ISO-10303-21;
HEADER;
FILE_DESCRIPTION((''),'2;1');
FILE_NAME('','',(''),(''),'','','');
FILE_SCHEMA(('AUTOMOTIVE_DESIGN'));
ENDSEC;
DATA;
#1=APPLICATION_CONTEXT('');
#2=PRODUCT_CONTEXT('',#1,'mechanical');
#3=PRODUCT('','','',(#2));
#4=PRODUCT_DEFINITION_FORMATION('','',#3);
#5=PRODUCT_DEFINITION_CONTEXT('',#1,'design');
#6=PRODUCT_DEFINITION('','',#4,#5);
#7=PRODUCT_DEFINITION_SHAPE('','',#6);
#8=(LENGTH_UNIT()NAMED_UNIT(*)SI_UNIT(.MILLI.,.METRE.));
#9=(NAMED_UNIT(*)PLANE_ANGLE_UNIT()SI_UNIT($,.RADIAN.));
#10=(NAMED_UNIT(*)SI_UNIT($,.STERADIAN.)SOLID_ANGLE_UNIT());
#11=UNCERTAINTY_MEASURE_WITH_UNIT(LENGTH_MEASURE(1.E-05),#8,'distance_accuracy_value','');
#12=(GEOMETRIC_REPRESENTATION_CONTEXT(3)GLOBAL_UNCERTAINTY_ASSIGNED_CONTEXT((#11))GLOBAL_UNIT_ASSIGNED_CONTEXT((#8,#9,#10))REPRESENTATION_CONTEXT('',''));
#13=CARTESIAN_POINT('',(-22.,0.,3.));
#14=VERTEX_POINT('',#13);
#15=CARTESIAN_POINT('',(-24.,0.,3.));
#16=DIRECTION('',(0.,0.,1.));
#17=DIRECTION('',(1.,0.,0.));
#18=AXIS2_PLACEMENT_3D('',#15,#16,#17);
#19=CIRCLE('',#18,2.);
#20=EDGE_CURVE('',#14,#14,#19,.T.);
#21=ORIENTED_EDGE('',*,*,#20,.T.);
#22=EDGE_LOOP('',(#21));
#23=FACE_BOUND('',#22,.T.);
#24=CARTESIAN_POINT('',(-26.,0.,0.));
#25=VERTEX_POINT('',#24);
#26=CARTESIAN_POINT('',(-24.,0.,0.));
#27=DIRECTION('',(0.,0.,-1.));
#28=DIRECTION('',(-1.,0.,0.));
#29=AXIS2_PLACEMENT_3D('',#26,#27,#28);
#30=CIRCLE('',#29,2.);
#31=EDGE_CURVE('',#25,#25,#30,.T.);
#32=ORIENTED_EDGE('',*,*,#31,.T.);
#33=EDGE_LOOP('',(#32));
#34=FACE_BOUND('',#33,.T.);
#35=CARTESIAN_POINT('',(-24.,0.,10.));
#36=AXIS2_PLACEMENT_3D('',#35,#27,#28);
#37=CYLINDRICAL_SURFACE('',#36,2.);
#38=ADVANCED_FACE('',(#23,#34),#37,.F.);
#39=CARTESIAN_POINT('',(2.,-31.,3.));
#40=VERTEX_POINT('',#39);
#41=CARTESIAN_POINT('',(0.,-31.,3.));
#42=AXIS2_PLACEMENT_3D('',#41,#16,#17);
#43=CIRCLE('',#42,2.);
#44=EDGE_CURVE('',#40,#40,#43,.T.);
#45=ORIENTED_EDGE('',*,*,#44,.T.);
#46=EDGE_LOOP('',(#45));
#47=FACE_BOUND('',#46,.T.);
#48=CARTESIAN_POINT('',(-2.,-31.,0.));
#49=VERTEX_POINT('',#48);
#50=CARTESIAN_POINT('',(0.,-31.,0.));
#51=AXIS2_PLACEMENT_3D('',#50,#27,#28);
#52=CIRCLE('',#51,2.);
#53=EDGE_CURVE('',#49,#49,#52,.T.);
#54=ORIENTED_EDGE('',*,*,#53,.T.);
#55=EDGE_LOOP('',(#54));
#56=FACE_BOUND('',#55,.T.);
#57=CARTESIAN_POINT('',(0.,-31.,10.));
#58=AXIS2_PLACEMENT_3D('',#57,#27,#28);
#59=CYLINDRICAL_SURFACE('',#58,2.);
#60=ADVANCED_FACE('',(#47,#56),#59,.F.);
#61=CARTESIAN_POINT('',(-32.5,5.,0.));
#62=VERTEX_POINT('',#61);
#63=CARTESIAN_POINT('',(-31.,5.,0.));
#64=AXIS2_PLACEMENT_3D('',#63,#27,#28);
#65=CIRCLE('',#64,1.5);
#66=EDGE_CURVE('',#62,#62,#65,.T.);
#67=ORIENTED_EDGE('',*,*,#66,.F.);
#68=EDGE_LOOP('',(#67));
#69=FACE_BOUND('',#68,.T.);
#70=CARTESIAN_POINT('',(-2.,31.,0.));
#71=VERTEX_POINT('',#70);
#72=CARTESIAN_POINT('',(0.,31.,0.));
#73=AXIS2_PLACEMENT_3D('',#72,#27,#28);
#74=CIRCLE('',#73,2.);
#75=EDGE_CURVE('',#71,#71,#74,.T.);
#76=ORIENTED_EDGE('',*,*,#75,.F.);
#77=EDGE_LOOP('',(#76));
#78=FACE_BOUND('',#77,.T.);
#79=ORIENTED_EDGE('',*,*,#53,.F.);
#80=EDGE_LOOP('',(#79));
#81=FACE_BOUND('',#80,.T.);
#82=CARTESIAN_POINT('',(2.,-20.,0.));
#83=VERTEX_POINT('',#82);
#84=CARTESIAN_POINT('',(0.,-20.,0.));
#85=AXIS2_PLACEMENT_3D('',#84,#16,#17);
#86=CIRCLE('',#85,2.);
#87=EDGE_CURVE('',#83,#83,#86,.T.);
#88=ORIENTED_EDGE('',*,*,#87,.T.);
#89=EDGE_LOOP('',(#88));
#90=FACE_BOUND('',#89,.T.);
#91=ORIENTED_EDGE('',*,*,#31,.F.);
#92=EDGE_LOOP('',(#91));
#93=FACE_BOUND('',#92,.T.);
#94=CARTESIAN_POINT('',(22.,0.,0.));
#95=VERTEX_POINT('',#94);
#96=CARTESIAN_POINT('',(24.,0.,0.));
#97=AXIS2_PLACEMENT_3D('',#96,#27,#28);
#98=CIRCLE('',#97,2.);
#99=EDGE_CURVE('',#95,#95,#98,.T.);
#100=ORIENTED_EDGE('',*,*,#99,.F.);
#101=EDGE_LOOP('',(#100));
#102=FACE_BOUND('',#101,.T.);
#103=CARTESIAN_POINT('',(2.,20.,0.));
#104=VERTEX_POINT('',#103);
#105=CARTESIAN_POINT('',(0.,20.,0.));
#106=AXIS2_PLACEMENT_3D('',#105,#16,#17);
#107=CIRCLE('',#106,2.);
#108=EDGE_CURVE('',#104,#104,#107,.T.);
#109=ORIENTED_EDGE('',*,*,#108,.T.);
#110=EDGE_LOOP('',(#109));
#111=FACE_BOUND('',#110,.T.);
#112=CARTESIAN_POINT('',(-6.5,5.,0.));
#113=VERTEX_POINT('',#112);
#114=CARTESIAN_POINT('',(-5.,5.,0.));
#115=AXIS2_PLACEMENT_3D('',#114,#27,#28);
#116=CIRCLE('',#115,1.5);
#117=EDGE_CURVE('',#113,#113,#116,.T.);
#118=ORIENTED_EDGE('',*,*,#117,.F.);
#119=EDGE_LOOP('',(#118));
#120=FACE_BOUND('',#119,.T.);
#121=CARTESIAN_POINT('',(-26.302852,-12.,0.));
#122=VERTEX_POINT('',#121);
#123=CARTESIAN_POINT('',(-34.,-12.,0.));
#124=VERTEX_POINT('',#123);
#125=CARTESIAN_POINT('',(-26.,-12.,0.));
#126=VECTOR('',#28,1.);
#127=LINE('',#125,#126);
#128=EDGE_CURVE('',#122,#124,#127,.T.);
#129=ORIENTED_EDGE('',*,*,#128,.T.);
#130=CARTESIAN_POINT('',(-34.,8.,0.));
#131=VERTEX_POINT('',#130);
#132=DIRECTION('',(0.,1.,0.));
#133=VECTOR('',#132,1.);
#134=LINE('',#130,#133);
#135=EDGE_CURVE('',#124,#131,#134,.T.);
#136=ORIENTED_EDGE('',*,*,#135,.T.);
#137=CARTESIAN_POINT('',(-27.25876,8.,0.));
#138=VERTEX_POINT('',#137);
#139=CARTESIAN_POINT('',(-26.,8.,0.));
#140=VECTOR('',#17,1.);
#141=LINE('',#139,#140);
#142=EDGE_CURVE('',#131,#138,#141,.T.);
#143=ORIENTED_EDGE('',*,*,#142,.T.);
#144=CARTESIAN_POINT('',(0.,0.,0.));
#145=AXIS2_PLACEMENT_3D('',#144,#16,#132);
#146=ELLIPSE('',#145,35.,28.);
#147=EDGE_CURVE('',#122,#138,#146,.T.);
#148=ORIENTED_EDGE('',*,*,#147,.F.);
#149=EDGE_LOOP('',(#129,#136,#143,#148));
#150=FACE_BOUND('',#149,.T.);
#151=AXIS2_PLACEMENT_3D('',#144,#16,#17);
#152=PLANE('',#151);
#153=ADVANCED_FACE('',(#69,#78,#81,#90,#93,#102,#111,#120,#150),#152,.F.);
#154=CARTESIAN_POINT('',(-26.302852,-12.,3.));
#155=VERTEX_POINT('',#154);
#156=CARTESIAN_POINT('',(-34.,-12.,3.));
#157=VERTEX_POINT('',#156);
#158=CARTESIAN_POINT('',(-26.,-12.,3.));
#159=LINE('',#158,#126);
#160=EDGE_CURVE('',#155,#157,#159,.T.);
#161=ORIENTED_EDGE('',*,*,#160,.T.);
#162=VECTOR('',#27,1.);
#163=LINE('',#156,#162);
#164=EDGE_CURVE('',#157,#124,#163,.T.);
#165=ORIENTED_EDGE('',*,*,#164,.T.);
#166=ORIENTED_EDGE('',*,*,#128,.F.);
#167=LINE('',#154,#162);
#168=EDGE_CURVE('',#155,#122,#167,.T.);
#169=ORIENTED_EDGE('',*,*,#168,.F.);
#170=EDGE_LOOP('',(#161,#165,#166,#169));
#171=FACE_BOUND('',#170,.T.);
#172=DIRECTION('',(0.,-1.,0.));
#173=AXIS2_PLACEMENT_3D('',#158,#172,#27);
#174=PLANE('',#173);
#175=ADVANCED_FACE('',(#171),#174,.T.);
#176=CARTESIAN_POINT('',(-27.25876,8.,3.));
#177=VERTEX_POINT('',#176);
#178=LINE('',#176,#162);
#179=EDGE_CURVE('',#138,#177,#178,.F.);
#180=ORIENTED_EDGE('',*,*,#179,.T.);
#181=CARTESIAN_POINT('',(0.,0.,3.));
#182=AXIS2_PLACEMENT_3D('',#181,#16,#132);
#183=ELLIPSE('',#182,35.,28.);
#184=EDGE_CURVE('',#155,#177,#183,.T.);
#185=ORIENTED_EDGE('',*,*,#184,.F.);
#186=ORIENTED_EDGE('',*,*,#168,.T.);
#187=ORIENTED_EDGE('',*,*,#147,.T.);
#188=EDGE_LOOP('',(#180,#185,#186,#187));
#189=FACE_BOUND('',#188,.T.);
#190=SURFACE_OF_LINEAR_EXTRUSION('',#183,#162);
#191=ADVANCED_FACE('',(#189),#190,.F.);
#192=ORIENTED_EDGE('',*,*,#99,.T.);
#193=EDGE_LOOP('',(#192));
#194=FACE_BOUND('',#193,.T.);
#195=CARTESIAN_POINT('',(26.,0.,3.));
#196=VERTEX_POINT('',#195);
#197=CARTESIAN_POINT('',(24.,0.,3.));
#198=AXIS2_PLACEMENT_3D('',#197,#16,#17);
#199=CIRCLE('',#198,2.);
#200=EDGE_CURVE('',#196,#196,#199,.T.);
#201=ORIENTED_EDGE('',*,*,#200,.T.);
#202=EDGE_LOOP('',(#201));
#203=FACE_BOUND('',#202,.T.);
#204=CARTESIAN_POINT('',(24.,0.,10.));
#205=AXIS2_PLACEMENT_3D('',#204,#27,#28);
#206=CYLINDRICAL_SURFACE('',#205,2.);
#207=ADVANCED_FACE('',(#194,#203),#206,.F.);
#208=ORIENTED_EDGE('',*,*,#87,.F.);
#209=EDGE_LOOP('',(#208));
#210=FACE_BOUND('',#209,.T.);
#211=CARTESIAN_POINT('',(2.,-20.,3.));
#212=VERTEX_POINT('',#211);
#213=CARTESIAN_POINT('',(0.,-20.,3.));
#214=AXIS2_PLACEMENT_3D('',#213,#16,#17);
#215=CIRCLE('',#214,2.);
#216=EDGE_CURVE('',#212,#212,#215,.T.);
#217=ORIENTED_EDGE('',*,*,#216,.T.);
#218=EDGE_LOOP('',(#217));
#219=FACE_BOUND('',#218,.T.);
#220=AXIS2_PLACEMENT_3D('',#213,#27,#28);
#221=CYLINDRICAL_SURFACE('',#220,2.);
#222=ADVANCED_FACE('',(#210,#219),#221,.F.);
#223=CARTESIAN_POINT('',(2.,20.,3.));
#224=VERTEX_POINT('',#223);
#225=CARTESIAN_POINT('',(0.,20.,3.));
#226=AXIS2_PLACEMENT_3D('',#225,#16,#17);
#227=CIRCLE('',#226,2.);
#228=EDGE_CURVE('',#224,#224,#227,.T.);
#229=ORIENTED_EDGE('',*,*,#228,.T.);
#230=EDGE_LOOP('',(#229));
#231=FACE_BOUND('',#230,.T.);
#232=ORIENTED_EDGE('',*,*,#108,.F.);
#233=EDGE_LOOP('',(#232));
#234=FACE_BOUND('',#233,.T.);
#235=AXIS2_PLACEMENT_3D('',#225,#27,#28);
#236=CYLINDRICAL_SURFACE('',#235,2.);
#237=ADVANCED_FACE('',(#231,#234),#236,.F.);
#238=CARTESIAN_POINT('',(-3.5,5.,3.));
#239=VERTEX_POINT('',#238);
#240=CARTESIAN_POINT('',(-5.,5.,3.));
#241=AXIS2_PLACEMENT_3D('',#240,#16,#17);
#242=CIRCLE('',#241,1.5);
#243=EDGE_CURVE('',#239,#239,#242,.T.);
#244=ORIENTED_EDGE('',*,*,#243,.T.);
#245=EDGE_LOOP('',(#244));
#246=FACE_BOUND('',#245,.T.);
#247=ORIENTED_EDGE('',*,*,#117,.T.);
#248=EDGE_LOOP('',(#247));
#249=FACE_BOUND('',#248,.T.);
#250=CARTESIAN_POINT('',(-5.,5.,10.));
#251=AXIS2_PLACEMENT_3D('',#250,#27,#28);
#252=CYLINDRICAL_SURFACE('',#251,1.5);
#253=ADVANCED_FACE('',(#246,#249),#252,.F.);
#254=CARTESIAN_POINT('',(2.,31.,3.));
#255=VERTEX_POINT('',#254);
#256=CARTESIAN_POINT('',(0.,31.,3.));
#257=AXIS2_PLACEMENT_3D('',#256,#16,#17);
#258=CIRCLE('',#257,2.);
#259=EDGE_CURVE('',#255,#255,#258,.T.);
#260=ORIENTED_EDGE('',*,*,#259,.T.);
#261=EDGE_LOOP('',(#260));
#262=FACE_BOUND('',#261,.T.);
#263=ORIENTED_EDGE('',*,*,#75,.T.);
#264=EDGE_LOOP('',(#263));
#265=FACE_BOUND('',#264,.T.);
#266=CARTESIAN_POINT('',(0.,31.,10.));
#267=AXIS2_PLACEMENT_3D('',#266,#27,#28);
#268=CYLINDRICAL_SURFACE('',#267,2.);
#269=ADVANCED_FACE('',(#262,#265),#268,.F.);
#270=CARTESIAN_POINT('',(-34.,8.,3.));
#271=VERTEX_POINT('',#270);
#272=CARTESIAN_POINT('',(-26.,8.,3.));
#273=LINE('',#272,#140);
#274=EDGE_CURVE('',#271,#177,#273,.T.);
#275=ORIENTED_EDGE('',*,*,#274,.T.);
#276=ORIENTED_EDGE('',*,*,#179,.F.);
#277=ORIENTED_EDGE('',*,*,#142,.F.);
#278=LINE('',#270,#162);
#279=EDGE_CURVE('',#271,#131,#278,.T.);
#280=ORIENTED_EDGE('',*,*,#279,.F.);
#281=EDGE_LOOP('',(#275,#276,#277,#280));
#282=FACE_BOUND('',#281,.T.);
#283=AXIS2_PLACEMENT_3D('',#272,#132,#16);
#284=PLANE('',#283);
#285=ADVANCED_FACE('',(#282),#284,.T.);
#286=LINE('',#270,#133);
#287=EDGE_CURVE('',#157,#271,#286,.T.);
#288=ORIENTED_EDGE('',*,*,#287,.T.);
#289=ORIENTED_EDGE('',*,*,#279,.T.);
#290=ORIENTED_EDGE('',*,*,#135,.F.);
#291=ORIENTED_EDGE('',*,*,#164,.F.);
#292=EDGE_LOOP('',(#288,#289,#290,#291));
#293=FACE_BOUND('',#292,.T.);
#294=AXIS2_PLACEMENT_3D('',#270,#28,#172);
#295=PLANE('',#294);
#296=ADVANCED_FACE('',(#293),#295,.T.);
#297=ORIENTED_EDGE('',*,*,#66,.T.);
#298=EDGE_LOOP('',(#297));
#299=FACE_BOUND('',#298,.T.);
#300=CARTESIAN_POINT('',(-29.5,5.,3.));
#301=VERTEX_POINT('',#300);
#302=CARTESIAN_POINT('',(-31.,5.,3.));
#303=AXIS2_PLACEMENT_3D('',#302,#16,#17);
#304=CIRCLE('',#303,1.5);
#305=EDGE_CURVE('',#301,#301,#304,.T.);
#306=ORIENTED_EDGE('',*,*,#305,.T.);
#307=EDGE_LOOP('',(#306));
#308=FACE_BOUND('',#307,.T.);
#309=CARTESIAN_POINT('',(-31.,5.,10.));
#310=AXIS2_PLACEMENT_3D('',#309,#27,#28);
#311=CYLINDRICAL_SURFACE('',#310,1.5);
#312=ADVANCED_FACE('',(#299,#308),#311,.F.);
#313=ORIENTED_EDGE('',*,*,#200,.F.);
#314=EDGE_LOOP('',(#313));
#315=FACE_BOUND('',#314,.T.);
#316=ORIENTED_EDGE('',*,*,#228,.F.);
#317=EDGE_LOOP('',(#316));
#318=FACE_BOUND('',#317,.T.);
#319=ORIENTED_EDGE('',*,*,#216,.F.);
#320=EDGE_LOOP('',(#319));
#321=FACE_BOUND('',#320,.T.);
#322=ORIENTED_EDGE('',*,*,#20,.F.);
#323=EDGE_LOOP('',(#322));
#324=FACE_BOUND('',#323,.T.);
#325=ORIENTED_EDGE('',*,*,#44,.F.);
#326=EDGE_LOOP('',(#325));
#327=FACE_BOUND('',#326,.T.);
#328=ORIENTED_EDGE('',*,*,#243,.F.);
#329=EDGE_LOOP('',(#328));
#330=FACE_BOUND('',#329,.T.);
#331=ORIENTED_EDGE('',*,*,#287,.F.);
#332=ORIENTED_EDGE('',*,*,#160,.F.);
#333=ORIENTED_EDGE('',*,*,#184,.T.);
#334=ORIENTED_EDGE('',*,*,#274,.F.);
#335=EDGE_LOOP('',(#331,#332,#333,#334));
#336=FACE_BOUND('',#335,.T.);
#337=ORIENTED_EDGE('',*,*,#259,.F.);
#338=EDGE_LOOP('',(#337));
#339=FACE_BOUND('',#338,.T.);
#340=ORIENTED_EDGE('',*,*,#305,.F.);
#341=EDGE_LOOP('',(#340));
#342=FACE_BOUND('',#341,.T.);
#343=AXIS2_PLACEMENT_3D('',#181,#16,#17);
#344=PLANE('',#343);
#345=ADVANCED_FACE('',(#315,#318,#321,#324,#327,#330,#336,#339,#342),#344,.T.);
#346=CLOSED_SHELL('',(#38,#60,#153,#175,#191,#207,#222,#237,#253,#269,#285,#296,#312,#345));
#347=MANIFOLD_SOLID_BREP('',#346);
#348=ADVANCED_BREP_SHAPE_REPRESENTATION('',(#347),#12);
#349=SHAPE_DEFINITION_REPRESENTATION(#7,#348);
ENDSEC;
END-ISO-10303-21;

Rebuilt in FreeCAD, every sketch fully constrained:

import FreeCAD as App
import Part
import Sketcher

V = App.Vector


def add_polygon(sketch, points):
    """Adds a closed chain of lines whose ends are joined by coincident constraints."""
    first, n = sketch.GeometryCount, len(points)
    for a, b in zip(points, points[1:] + points[:1]):
        sketch.addGeometry(Part.LineSegment(App.Vector(*a, 0), App.Vector(*b, 0)), False)
    for i in range(n):
        sketch.addConstraint(Sketcher.Constraint("Coincident", first + i, 2, first + (i + 1) % n, 1))

doc = App.newDocument("Part")
body = doc.addObject("PartDesign::Body", "Body")

# Sketch on XY plane
sketch1 = body.newObject("Sketcher::SketchObject", "Sketch")
sketch1.AttachmentSupport = (doc.getObject("XY_Plane"), [""])
sketch1.MapMode = "FlatFace"
sketch1.addGeometry(Part.Ellipse(V(0, 35, 0), V(-28, 0, 0), V(0, 0, 0)), False)
sketch1.addGeometry(Part.Circle(V(0, -20, 0), V(0, 0, 1), 2), False)
sketch1.addGeometry(Part.Circle(V(0, 20, 0), V(0, 0, 1), 2), False)
sketch1.addConstraint(Sketcher.Constraint("Block", 0))
sketch1.addConstraint(Sketcher.Constraint("Equal", 1, 2))
sketch1.addConstraint(Sketcher.Constraint("Symmetric", 1, 3, 2, 3, -1, 1))
sketch1.addConstraint(Sketcher.Constraint("PointOnObject", 1, 3, -2))
sketch1.addConstraint(Sketcher.Constraint("Diameter", 1, 4.0))
sketch1.addConstraint(Sketcher.Constraint("DistanceY", 1, 3, -1, 1, 20.0))
pad1 = body.newObject("PartDesign::Pad", "Pad")
pad1.Profile = sketch1
pad1.Length = 3

# Sketch on XY plane
sketch2 = body.newObject("Sketcher::SketchObject", "Sketch001")
sketch2.AttachmentSupport = (doc.getObject("XY_Plane"), [""])
sketch2.MapMode = "FlatFace"
sketch2.addGeometry(Part.Circle(V(-24, 0, 0), V(0, 0, 1), 2), False)
sketch2.addGeometry(Part.Circle(V(24, 0, 0), V(0, 0, 1), 2), False)
sketch2.addGeometry(Part.Circle(V(0, 31, 0), V(0, 0, 1), 2), False)
sketch2.addGeometry(Part.Circle(V(0, -31, 0), V(0, 0, 1), 2), False)
sketch2.addConstraint(Sketcher.Constraint("Equal", 0, 1))
sketch2.addConstraint(Sketcher.Constraint("Equal", 1, 2))
sketch2.addConstraint(Sketcher.Constraint("Equal", 2, 3))
sketch2.addConstraint(Sketcher.Constraint("Symmetric", 0, 3, 1, 3, -1, 1))
sketch2.addConstraint(Sketcher.Constraint("Symmetric", 2, 3, 3, 3, -1, 1))
sketch2.addConstraint(Sketcher.Constraint("PointOnObject", 0, 3, -1))
sketch2.addConstraint(Sketcher.Constraint("PointOnObject", 2, 3, -2))
sketch2.addConstraint(Sketcher.Constraint("Diameter", 0, 4.0))
sketch2.addConstraint(Sketcher.Constraint("DistanceX", 0, 3, -1, 1, 24.0))
sketch2.addConstraint(Sketcher.Constraint("DistanceY", -1, 1, 2, 3, 31.0))
pocket1 = body.newObject("PartDesign::Pocket", "Pocket")
pocket1.Profile = sketch2
pocket1.Length = 10
pocket1.Reversed = True

# Sketch on XY plane
sketch3 = body.newObject("Sketcher::SketchObject", "Sketch002")
sketch3.AttachmentSupport = (doc.getObject("XY_Plane"), [""])
sketch3.MapMode = "FlatFace"
add_polygon(sketch3, [(-26, 8), (-26, -12), (-34, -12), (-34, 8)])  # lines 0-3
sketch3.addConstraint(Sketcher.Constraint("Vertical", 0))
sketch3.addConstraint(Sketcher.Constraint("Horizontal", 1))
sketch3.addConstraint(Sketcher.Constraint("Vertical", 2))
sketch3.addConstraint(Sketcher.Constraint("Horizontal", 3))
sketch3.addConstraint(Sketcher.Constraint("DistanceX", 1, 2, 1, 1, 8.0))
sketch3.addConstraint(Sketcher.Constraint("DistanceY", 0, 2, 0, 1, 20.0))
sketch3.addConstraint(Sketcher.Constraint("DistanceX", 0, 2, -1, 1, 26.0))
sketch3.addConstraint(Sketcher.Constraint("DistanceY", 0, 2, -1, 1, 12.0))
pad2 = body.newObject("PartDesign::Pad", "Pad001")
pad2.Profile = sketch3
pad2.Length = 3

# Sketch on XY plane
sketch4 = body.newObject("Sketcher::SketchObject", "Sketch003")
sketch4.AttachmentSupport = (doc.getObject("XY_Plane"), [""])
sketch4.MapMode = "FlatFace"
sketch4.addGeometry(Part.Circle(V(-5, 5, 0), V(0, 0, 1), 1.5), False)
sketch4.addGeometry(Part.Circle(V(-31, 5, 0), V(0, 0, 1), 1.5), False)
sketch4.addConstraint(Sketcher.Constraint("Equal", 0, 1))
sketch4.addConstraint(Sketcher.Constraint("Horizontal", 0, 3, 1, 3))
sketch4.addConstraint(Sketcher.Constraint("Diameter", 0, 3.0))
sketch4.addConstraint(Sketcher.Constraint("DistanceX", 0, 3, -1, 1, 5.0))
sketch4.addConstraint(Sketcher.Constraint("DistanceY", -1, 1, 0, 3, 5.0))
sketch4.addConstraint(Sketcher.Constraint("DistanceX", 1, 3, -1, 1, 31.0))
pocket2 = body.newObject("PartDesign::Pocket", "Pocket001")
pocket2.Profile = sketch4
pocket2.Length = 10
pocket2.Reversed = True

doc.recompute()
